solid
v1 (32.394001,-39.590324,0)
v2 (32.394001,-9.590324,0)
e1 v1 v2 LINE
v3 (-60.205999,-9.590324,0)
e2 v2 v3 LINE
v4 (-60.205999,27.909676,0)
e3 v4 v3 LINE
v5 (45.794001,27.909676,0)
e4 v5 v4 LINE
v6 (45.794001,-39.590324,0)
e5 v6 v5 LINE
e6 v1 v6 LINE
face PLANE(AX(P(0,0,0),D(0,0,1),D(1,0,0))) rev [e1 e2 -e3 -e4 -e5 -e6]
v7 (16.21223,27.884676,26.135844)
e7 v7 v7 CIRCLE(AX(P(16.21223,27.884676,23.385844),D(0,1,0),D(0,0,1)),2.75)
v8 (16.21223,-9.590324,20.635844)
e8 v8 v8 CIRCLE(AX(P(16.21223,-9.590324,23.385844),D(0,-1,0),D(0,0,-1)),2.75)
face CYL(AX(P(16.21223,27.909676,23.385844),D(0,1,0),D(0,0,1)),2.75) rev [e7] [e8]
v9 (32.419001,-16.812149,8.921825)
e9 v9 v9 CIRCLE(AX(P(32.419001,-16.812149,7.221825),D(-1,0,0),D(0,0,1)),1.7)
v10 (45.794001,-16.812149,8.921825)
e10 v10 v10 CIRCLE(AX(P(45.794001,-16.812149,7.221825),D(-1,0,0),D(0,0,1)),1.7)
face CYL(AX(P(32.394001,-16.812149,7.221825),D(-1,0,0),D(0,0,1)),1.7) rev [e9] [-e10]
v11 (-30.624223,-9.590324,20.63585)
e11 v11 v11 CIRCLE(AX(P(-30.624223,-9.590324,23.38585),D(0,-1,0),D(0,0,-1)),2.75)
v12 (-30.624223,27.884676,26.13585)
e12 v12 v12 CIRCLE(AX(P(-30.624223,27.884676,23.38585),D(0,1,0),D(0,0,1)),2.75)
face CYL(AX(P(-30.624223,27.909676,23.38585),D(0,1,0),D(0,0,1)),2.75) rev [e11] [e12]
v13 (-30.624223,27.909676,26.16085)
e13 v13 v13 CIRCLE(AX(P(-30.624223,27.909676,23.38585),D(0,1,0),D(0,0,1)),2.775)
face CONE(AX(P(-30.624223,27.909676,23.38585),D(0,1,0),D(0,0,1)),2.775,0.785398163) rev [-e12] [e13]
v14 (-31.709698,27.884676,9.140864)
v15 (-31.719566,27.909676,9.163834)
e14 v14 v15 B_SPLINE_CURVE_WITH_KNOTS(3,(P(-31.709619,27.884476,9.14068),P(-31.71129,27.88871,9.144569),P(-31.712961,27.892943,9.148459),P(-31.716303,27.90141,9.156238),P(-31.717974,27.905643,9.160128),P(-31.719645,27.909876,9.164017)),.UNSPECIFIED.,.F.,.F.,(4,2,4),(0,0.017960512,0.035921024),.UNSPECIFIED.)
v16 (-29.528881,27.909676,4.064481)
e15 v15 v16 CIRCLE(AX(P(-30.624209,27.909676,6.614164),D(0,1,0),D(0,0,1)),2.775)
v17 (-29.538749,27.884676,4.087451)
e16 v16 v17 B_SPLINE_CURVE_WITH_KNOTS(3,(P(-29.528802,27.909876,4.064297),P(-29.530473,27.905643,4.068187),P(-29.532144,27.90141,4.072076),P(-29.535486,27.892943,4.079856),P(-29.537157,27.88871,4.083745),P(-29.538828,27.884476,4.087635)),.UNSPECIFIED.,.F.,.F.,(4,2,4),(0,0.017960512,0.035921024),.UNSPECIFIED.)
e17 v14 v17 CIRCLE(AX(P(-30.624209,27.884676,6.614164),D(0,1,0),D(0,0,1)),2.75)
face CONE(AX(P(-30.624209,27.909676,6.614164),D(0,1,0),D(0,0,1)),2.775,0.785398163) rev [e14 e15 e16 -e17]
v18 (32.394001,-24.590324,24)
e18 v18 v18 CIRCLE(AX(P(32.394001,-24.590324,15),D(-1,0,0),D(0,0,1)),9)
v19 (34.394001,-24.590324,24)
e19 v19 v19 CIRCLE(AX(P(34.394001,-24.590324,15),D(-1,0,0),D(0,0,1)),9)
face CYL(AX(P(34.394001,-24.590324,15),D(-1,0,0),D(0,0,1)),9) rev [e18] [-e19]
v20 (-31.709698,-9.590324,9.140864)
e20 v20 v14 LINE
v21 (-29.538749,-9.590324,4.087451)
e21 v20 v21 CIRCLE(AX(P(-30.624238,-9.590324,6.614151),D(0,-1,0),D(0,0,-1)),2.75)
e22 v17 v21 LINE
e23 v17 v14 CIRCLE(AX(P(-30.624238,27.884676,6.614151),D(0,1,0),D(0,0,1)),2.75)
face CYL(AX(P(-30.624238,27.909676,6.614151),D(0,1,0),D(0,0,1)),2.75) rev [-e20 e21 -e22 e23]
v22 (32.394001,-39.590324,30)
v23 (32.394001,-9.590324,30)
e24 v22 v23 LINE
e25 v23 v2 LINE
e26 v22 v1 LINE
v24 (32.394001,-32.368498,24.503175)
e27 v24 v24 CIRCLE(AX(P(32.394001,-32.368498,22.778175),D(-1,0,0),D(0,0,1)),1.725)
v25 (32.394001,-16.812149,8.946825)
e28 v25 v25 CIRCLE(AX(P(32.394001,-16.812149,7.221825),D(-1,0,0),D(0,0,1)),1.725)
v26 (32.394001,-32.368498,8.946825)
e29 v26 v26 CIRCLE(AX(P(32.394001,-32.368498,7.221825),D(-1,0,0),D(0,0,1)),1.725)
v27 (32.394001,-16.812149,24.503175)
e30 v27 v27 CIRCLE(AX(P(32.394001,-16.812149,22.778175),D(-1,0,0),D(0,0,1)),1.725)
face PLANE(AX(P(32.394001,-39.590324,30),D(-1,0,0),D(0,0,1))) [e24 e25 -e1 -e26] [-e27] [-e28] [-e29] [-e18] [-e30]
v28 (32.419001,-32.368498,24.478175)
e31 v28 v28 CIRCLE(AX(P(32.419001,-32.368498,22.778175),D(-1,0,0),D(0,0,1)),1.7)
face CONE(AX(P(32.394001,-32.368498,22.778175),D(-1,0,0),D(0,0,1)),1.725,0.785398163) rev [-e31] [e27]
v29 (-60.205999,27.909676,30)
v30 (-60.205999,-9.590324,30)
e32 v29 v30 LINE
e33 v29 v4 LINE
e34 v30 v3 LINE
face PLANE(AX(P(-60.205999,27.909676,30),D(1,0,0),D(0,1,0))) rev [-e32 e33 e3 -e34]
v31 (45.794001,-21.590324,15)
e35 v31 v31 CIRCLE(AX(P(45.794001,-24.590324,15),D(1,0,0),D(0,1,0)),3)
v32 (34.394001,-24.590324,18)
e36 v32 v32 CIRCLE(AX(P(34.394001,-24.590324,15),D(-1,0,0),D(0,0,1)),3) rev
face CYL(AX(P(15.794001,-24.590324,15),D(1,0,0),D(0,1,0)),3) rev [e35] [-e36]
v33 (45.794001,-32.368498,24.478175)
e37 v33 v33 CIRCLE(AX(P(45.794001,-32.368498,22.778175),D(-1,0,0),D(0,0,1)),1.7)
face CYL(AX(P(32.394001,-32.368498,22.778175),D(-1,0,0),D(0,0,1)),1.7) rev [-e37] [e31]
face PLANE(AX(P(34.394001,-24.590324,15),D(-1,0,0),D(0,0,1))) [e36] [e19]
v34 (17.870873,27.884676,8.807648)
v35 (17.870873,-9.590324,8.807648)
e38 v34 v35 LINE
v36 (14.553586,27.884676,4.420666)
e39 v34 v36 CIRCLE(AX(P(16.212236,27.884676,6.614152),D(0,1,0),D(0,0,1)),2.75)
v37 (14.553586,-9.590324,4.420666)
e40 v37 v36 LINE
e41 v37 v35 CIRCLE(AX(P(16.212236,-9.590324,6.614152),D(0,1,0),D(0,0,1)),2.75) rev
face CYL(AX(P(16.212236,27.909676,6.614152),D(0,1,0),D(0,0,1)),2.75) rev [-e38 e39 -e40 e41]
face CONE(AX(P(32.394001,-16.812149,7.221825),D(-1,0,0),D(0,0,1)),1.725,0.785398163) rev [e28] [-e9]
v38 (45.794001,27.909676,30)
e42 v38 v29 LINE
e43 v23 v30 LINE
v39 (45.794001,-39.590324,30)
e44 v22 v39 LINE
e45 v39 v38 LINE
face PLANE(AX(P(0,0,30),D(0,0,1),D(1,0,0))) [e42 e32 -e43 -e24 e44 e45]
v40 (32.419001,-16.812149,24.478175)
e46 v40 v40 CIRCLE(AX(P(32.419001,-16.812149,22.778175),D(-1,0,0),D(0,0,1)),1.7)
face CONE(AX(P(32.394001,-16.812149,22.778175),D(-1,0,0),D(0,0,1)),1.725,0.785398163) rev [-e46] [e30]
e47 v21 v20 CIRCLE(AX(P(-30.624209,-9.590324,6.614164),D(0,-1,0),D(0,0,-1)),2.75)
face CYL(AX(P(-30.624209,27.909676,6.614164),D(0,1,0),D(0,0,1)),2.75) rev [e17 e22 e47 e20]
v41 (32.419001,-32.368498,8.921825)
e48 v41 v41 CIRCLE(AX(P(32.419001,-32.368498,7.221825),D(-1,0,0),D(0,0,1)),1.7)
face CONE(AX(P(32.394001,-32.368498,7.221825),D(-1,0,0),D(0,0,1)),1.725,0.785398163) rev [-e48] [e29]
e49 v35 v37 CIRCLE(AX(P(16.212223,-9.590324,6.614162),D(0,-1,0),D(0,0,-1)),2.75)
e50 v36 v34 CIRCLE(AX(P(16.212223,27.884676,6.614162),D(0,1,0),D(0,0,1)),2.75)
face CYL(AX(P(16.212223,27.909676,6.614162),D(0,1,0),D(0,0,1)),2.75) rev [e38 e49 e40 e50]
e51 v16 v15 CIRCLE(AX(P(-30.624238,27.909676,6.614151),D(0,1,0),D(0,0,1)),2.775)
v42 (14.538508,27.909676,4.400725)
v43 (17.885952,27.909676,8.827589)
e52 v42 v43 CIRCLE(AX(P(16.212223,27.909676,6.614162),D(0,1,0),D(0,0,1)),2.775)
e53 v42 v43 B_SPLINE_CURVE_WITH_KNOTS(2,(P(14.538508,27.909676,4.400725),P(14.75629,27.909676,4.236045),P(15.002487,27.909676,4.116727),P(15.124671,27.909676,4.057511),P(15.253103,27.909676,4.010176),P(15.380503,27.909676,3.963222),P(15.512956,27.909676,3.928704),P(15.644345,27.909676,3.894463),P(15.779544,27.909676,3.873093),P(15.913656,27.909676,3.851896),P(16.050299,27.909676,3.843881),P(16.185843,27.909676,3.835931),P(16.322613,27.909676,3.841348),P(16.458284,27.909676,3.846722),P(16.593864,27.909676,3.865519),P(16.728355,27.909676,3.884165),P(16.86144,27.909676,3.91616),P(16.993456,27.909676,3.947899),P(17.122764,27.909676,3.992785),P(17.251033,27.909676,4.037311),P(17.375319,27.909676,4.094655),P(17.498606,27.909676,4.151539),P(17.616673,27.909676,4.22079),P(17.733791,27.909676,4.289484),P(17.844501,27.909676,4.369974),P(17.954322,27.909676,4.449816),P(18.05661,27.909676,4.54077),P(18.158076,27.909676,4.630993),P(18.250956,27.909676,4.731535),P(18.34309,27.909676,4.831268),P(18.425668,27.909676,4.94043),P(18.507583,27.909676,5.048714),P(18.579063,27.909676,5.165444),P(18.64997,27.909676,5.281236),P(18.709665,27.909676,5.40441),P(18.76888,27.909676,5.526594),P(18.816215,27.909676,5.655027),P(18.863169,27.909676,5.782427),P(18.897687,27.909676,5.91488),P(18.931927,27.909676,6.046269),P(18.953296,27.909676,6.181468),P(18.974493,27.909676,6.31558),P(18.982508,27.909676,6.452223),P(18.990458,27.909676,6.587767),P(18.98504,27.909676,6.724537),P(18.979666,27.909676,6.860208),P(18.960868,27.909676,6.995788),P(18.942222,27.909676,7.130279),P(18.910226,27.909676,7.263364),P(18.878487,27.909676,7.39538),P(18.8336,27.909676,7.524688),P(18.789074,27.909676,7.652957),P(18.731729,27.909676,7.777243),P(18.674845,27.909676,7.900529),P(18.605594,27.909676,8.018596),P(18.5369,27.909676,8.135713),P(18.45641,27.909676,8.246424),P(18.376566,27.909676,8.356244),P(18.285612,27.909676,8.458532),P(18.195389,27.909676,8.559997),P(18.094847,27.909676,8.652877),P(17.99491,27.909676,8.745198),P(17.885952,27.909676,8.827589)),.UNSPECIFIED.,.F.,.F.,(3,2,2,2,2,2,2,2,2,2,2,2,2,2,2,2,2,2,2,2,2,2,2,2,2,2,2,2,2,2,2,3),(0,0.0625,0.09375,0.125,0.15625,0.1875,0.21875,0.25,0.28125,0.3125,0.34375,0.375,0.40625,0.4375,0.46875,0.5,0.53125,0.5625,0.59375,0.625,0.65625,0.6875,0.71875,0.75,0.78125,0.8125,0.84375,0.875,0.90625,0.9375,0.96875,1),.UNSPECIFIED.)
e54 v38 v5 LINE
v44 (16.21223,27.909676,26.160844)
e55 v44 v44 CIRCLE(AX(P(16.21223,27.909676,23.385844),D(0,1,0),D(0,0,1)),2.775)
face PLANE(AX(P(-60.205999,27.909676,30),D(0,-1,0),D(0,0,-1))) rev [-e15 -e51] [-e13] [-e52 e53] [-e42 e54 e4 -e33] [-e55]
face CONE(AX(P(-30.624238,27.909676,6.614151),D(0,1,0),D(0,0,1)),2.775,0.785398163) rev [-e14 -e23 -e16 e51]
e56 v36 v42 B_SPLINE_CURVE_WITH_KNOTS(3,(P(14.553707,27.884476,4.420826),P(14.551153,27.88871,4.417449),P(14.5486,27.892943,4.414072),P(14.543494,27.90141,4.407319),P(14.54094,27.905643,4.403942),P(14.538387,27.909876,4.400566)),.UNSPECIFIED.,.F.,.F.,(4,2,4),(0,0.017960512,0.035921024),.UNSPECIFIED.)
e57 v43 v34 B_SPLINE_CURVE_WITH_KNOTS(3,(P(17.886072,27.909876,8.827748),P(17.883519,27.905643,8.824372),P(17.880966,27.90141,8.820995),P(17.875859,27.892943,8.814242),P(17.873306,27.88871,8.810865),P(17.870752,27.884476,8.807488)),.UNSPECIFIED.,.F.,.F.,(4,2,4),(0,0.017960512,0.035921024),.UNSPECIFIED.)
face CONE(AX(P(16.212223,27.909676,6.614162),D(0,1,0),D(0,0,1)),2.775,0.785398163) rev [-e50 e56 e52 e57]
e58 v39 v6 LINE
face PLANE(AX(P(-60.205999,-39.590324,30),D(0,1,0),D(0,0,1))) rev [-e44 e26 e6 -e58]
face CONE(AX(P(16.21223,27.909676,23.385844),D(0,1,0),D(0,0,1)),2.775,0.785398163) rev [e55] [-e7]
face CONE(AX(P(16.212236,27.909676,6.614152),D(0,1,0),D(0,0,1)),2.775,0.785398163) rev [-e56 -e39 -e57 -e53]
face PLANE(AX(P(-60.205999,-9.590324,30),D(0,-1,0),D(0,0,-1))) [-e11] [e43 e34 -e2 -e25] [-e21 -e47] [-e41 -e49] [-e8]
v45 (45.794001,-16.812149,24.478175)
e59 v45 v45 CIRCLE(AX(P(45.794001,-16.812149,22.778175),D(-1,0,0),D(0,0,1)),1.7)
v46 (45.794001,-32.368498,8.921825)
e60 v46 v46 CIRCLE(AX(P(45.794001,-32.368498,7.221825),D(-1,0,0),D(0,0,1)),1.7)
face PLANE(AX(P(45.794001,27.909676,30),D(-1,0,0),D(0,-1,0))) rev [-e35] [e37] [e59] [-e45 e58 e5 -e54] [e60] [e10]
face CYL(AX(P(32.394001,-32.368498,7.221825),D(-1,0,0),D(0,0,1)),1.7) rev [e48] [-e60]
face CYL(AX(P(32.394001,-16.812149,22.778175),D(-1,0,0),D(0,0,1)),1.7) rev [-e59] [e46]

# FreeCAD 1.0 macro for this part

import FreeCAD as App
import Part
import Sketcher
Q = App.Units.Quantity

doc = App.newDocument("Part")
body = doc.addObject("PartDesign::Body", "Body")

# Sketch on XY plane
sketch1 = body.newObject("Sketcher::SketchObject", "Sketch")
sketch1.AttachmentSupport = (doc.getObject("XY_Plane"), [""])
sketch1.MapMode = "FlatFace"
sketch1.addGeometry([
    Part.LineSegment(App.Vector(-60, 28, 0), App.Vector(-60, -40, 0)),
    Part.LineSegment(App.Vector(-60, -40, 0), App.Vector(46, -40, 0)),
    Part.LineSegment(App.Vector(46, -40, 0), App.Vector(46, 28, 0)),
    Part.LineSegment(App.Vector(46, 28, 0), App.Vector(-60, 28, 0)),
], False)
sketch1.addConstraint([
    Sketcher.Constraint("Coincident", 0, 2, 1, 1),
    Sketcher.Constraint("Coincident", 1, 2, 2, 1),
    Sketcher.Constraint("Coincident", 2, 2, 3, 1),
    Sketcher.Constraint("Coincident", 3, 2, 0, 1),
    Sketcher.Constraint("Vertical", 0),
    Sketcher.Constraint("Horizontal", 1),
    Sketcher.Constraint("Vertical", 2),
    Sketcher.Constraint("Horizontal", 3),
    Sketcher.Constraint("DistanceX", 1, 1, 1, 2, Q("106 mm")),
    Sketcher.Constraint("DistanceY", 0, 2, 0, 1, Q("67.5 mm")),
    Sketcher.Constraint("DistanceX", 0, 2, -1, 1, Q("60.205999 mm")),
    Sketcher.Constraint("DistanceY", 0, 2, -1, 1, Q("39.590324 mm")),
])
pad1 = body.newObject("PartDesign::Pad", "Pad")
pad1.Profile = sketch1
pad1.Length = 30

# Sketch on XY plane
sketch2 = body.newObject("Sketcher::SketchObject", "Sketch001")
sketch2.AttachmentSupport = (doc.getObject("XY_Plane"), [""])
sketch2.MapMode = "FlatFace"
sketch2.addGeometry([
    Part.LineSegment(App.Vector(-60, -10, 0), App.Vector(-60, -40, 0)),
    Part.LineSegment(App.Vector(-60, -40, 0), App.Vector(32, -40, 0)),
    Part.LineSegment(App.Vector(32, -40, 0), App.Vector(32, -10, 0)),
    Part.LineSegment(App.Vector(32, -10, 0), App.Vector(-60, -10, 0)),
], False)
sketch2.addConstraint([
    Sketcher.Constraint("Coincident", 0, 2, 1, 1),
    Sketcher.Constraint("Coincident", 1, 2, 2, 1),
    Sketcher.Constraint("Coincident", 2, 2, 3, 1),
    Sketcher.Constraint("Coincident", 3, 2, 0, 1),
    Sketcher.Constraint("Vertical", 0),
    Sketcher.Constraint("Horizontal", 1),
    Sketcher.Constraint("Vertical", 2),
    Sketcher.Constraint("Horizontal", 3),
    Sketcher.Constraint("DistanceY", 0, 2, 0, 1, Q("30 mm")),
    Sketcher.Constraint("DistanceX", 1, 1, 1, 2, Q("92.6 mm")),
    Sketcher.Constraint("DistanceX", 0, 2, -1, 1, Q("60.205999 mm")),
    Sketcher.Constraint("DistanceY", 0, 2, -1, 1, Q("39.590324 mm")),
])
pad2 = body.newObject("PartDesign::Pad", "Pad001")
pad2.Profile = sketch2
pad2.Length = 30

# Sketch on XY plane
sketch3 = body.newObject("Sketcher::SketchObject", "Sketch002")
sketch3.AttachmentSupport = (doc.getObject("XY_Plane"), [""])
sketch3.MapMode = "FlatFace"
sketch3.addGeometry([
    Part.LineSegment(App.Vector(-60, -10, 0), App.Vector(-60, -40, 0)),
    Part.LineSegment(App.Vector(-60, -40, 0), App.Vector(32, -40, 0)),
    Part.LineSegment(App.Vector(32, -40, 0), App.Vector(32, -10, 0)),
    Part.LineSegment(App.Vector(32, -10, 0), App.Vector(-60, -10, 0)),
], False)
sketch3.addConstraint([
    Sketcher.Constraint("Coincident", 0, 2, 1, 1),
    Sketcher.Constraint("Coincident", 1, 2, 2, 1),
    Sketcher.Constraint("Coincident", 2, 2, 3, 1),
    Sketcher.Constraint("Coincident", 3, 2, 0, 1),
    Sketcher.Constraint("Vertical", 0),
    Sketcher.Constraint("Horizontal", 1),
    Sketcher.Constraint("Vertical", 2),
    Sketcher.Constraint("Horizontal", 3),
    Sketcher.Constraint("DistanceY", 0, 2, 0, 1, Q("30 mm")),
    Sketcher.Constraint("DistanceX", 1, 1, 1, 2, Q("92.6 mm")),
    Sketcher.Constraint("DistanceX", 0, 2, -1, 1, Q("60.205999 mm")),
    Sketcher.Constraint("DistanceY", 0, 2, -1, 1, Q("39.590324 mm")),
])
pocket1 = body.newObject("PartDesign::Pocket", "Pocket")
pocket1.Profile = sketch3
pocket1.Length = 30
pocket1.Reversed = True

# Sketch on YZ plane
sketch4 = body.newObject("Sketcher::SketchObject", "Sketch003")
sketch4.AttachmentSupport = (doc.getObject("YZ_Plane"), [""])
sketch4.MapMode = "FlatFace"
sketch4.AttachmentOffset = App.Placement(App.Vector(0, 0, 45.794001), App.Rotation())
sketch4.addGeometry(Part.Circle(App.Vector(-24.6, 15, 0), App.Vector(0, 0, 1), 3), False)
sketch4.addConstraint([
    Sketcher.Constraint("Diameter", 0, Q("6 mm")),
    Sketcher.Constraint("DistanceY", -1, 1, 0, 3, Q("15 mm")),
    Sketcher.Constraint("DistanceX", 0, 3, -1, 1, Q("24.590324 mm")),
])
pocket2 = body.newObject("PartDesign::Pocket", "Pocket001")
pocket2.Profile = sketch4
pocket2.Length = 30

# Sketch on YZ plane
sketch5 = body.newObject("Sketcher::SketchObject", "Sketch004")
sketch5.AttachmentSupport = (doc.getObject("YZ_Plane"), [""])
sketch5.MapMode = "FlatFace"
sketch5.AttachmentOffset = App.Placement(App.Vector(0, 0, 32.394001), App.Rotation())
sketch5.addGeometry([
    Part.Circle(App.Vector(-32.4, 7.2, 0), App.Vector(0, 0, 1), 1.7),
    Part.Circle(App.Vector(-16.8, 7.2, 0), App.Vector(0, 0, 1), 1.7),
    Part.Circle(App.Vector(-16.8, 22.8, 0), App.Vector(0, 0, 1), 1.7),
    Part.Circle(App.Vector(-32.4, 22.8, 0), App.Vector(0, 0, 1), 1.7),
], False)
sketch5.addConstraint([
    Sketcher.Constraint("Equal", 0, 1),
    Sketcher.Constraint("Equal", 1, 2),
    Sketcher.Constraint("Equal", 2, 3),
    Sketcher.Constraint("Horizontal", 0, 3, 1, 3),
    Sketcher.Constraint("Horizontal", 2, 3, 3, 3),
    Sketcher.Constraint("Vertical", 1, 3, 2, 3),
    Sketcher.Constraint("Vertical", 0, 3, 3, 3),
    Sketcher.Constraint("Diameter", 0, Q("3.4 mm")),
    Sketcher.Constraint("DistanceX", 0, 3, -1, 1, Q("32.368498 mm")),
    Sketcher.Constraint("DistanceX", 1, 3, -1, 1, Q("16.812149 mm")),
    Sketcher.Constraint("DistanceY", 1, 3, 2, 3, Q("15.556349 mm")),
    Sketcher.Constraint("DistanceY", -1, 1, 0, 3, Q("7.221825 mm")),
])
doc.recompute()
hole = body.newObject("PartDesign::Hole", "Hole")
hole.Profile = sketch5
hole.ThreadType = "None"
hole.Diameter = 3.4
hole.DepthType = "ThroughAll"
hole.HoleCutType = "Countersink"
hole.HoleCutDiameter = 3.45
hole.HoleCutCountersinkAngle = 90
hole.Reversed = True

# Sketch on YZ plane
sketch6 = body.newObject("Sketcher::SketchObject", "Sketch005")
sketch6.AttachmentSupport = (doc.getObject("YZ_Plane"), [""])
sketch6.MapMode = "FlatFace"
sketch6.AttachmentOffset = App.Placement(App.Vector(0, 0, 32.394001), App.Rotation())
sketch6.addGeometry(Part.Circle(App.Vector(-25, 15, 0), App.Vector(0, 0, 1), 9), False)
sketch6.addConstraint([
    Sketcher.Constraint("Diameter", 0, Q("18 mm")),
    Sketcher.Constraint("DistanceY", -1, 1, 0, 3, Q("15 mm")),
    Sketcher.Constraint("DistanceX", 0, 3, -1, 1, Q("24.590324 mm")),
])
pocket3 = body.newObject("PartDesign::Pocket", "Pocket002")
pocket3.Profile = sketch6
pocket3.Length = 2
pocket3.Reversed = True

# Sketch on YZ plane
sketch7 = body.newObject("Sketcher::SketchObject", "Sketch006")
sketch7.AttachmentSupport = (doc.getObject("YZ_Plane"), [""])
sketch7.MapMode = "FlatFace"
sketch7.AttachmentOffset = App.Placement(App.Vector(0, 0, -30.624223), App.Rotation())
sketch7.addGeometry([
    Part.LineSegment(App.Vector(-39.59, 23.386, 0), App.Vector(27.91, 23.386, 0)),  # 0
    Part.LineSegment(App.Vector(27.91, 23.386, 0), App.Vector(27.91, 26.161, 0)),  # 1
    Part.LineSegment(App.Vector(27.91, 26.161, 0), App.Vector(27.885, 26.136, 0)),  # 2
    Part.LineSegment(App.Vector(27.885, 26.136, 0), App.Vector(-39.59, 26.136, 0)),  # 3
    Part.LineSegment(App.Vector(-39.59, 26.136, 0), App.Vector(-39.59, 23.386, 0)),  # 4
], False)
sketch7.addGeometry(Part.LineSegment(App.Vector(27.91, 23.386, 0), App.Vector(-39.59, 23.386, 0)), True)  # axis
sketch7.addConstraint([
    Sketcher.Constraint("Coincident", 0, 2, 1, 1),
    Sketcher.Constraint("Coincident", 1, 2, 2, 1),
    Sketcher.Constraint("Coincident", 2, 2, 3, 1),
    Sketcher.Constraint("Coincident", 3, 2, 4, 1),
    Sketcher.Constraint("Coincident", 4, 2, 0, 1),
    Sketcher.Constraint("Horizontal", 0),
    Sketcher.Constraint("Vertical", 1),
    Sketcher.Constraint("Horizontal", 3),
    Sketcher.Constraint("Vertical", 4),
    Sketcher.Constraint("Horizontal", 5),
    Sketcher.Constraint("Coincident", 5, 1, 0, 2),
    Sketcher.Constraint("Vertical", 3, 2, 5, 2),
    Sketcher.Constraint("Angle", 2, Q("-135 deg")),
    Sketcher.Constraint("DistanceX", 0, 1, 0, 2, Q("67.5 mm")),
    Sketcher.Constraint("DistanceY", 4, 2, 4, 1, Q("2.75 mm")),
    Sketcher.Constraint("DistanceX", 3, 2, 3, 1, Q("67.475 mm")),
    Sketcher.Constraint("DistanceY", -1, 1, 0, 2, Q("23.38585 mm")),
    Sketcher.Constraint("DistanceX", -1, 1, 0, 2, Q("27.909676 mm")),
])
groove = body.newObject("PartDesign::Groove", "Groove")
groove.Profile = sketch7
groove.ReferenceAxis = (sketch7, ["Axis0"])
groove.Angle = 360
doc.recompute()

datumline = body.newObject("PartDesign::Line", "DatumLine")
datumline.Placement = App.Placement(App.Vector(0, 0, 0), App.Rotation(App.Vector(0, 0, 1), App.Vector(0.941458955, 0, -0.337127626)))
linearpattern = body.newObject("PartDesign::LinearPattern", "LinearPattern")
linearpattern.Originals = [groove]
linearpattern.Direction = (datumline, [""])
linearpattern.Mode = "offset"
linearpattern.Offset = 49.748812
linearpattern.Occurrences = 2
body.Tip = linearpattern
doc.recompute()

linearpattern2 = body.newObject("PartDesign::LinearPattern", "LinearPattern001")
linearpattern2.Originals = [groove]
linearpattern2.Direction = (doc.getObject("X_Axis"), [""])
linearpattern2.Mode = "offset"
linearpattern2.Offset = 46.836464
linearpattern2.Occurrences = 2
body.Tip = linearpattern2
doc.recompute()

linearpattern3 = body.newObject("PartDesign::LinearPattern", "LinearPattern002")
linearpattern3.Originals = [groove]
linearpattern3.Direction = (doc.getObject("Z_Axis"), [""])
linearpattern3.Mode = "offset"
linearpattern3.Offset = 16.771699
linearpattern3.Occurrences = 2
linearpattern3.Reversed = True
body.Tip = linearpattern3
doc.recompute()

linearpattern4 = body.newObject("PartDesign::LinearPattern", "LinearPattern003")
linearpattern4.Originals = [groove]
linearpattern4.Direction = (doc.getObject("Z_Axis"), [""])
linearpattern4.Mode = "offset"
linearpattern4.Offset = 16.771686
linearpattern4.Occurrences = 2
linearpattern4.Reversed = True
body.Tip = linearpattern4
doc.recompute()

datumline2 = body.newObject("PartDesign::Line", "DatumLine001")
datumline2.Placement = App.Placement(App.Vector(0, 0, 0), App.Rotation(App.Vector(0, 0, 1), App.Vector(0.94145895, 0, -0.337127641)))
linearpattern5 = body.newObject("PartDesign::LinearPattern", "LinearPattern004")
linearpattern5.Originals = [groove]
linearpattern5.Direction = (datumline2, [""])
linearpattern5.Mode = "offset"
linearpattern5.Offset = 49.748807
linearpattern5.Occurrences = 2
body.Tip = linearpattern5
doc.recompute()

datumline3 = body.newObject("PartDesign::Line", "DatumLine002")
datumline3.Placement = App.Placement(App.Vector(0, 0, 0), App.Rotation(App.Vector(0, 0, 1), App.Vector(0.941458984, 0, -0.337127545)))
linearpattern6 = body.newObject("PartDesign::LinearPattern", "LinearPattern005")
linearpattern6.Originals = [groove]
linearpattern6.Direction = (datumline3, [""])
linearpattern6.Mode = "offset"
linearpattern6.Offset = 49.748791
linearpattern6.Occurrences = 2
body.Tip = linearpattern6
doc.recompute()

linearpattern7 = body.newObject("PartDesign::LinearPattern", "LinearPattern006")
linearpattern7.Originals = [groove]
linearpattern7.Direction = (doc.getObject("X_Axis"), [""])
linearpattern7.Mode = "offset"
linearpattern7.Offset = 46.836453
linearpattern7.Occurrences = 2
body.Tip = linearpattern7

doc.recompute()
